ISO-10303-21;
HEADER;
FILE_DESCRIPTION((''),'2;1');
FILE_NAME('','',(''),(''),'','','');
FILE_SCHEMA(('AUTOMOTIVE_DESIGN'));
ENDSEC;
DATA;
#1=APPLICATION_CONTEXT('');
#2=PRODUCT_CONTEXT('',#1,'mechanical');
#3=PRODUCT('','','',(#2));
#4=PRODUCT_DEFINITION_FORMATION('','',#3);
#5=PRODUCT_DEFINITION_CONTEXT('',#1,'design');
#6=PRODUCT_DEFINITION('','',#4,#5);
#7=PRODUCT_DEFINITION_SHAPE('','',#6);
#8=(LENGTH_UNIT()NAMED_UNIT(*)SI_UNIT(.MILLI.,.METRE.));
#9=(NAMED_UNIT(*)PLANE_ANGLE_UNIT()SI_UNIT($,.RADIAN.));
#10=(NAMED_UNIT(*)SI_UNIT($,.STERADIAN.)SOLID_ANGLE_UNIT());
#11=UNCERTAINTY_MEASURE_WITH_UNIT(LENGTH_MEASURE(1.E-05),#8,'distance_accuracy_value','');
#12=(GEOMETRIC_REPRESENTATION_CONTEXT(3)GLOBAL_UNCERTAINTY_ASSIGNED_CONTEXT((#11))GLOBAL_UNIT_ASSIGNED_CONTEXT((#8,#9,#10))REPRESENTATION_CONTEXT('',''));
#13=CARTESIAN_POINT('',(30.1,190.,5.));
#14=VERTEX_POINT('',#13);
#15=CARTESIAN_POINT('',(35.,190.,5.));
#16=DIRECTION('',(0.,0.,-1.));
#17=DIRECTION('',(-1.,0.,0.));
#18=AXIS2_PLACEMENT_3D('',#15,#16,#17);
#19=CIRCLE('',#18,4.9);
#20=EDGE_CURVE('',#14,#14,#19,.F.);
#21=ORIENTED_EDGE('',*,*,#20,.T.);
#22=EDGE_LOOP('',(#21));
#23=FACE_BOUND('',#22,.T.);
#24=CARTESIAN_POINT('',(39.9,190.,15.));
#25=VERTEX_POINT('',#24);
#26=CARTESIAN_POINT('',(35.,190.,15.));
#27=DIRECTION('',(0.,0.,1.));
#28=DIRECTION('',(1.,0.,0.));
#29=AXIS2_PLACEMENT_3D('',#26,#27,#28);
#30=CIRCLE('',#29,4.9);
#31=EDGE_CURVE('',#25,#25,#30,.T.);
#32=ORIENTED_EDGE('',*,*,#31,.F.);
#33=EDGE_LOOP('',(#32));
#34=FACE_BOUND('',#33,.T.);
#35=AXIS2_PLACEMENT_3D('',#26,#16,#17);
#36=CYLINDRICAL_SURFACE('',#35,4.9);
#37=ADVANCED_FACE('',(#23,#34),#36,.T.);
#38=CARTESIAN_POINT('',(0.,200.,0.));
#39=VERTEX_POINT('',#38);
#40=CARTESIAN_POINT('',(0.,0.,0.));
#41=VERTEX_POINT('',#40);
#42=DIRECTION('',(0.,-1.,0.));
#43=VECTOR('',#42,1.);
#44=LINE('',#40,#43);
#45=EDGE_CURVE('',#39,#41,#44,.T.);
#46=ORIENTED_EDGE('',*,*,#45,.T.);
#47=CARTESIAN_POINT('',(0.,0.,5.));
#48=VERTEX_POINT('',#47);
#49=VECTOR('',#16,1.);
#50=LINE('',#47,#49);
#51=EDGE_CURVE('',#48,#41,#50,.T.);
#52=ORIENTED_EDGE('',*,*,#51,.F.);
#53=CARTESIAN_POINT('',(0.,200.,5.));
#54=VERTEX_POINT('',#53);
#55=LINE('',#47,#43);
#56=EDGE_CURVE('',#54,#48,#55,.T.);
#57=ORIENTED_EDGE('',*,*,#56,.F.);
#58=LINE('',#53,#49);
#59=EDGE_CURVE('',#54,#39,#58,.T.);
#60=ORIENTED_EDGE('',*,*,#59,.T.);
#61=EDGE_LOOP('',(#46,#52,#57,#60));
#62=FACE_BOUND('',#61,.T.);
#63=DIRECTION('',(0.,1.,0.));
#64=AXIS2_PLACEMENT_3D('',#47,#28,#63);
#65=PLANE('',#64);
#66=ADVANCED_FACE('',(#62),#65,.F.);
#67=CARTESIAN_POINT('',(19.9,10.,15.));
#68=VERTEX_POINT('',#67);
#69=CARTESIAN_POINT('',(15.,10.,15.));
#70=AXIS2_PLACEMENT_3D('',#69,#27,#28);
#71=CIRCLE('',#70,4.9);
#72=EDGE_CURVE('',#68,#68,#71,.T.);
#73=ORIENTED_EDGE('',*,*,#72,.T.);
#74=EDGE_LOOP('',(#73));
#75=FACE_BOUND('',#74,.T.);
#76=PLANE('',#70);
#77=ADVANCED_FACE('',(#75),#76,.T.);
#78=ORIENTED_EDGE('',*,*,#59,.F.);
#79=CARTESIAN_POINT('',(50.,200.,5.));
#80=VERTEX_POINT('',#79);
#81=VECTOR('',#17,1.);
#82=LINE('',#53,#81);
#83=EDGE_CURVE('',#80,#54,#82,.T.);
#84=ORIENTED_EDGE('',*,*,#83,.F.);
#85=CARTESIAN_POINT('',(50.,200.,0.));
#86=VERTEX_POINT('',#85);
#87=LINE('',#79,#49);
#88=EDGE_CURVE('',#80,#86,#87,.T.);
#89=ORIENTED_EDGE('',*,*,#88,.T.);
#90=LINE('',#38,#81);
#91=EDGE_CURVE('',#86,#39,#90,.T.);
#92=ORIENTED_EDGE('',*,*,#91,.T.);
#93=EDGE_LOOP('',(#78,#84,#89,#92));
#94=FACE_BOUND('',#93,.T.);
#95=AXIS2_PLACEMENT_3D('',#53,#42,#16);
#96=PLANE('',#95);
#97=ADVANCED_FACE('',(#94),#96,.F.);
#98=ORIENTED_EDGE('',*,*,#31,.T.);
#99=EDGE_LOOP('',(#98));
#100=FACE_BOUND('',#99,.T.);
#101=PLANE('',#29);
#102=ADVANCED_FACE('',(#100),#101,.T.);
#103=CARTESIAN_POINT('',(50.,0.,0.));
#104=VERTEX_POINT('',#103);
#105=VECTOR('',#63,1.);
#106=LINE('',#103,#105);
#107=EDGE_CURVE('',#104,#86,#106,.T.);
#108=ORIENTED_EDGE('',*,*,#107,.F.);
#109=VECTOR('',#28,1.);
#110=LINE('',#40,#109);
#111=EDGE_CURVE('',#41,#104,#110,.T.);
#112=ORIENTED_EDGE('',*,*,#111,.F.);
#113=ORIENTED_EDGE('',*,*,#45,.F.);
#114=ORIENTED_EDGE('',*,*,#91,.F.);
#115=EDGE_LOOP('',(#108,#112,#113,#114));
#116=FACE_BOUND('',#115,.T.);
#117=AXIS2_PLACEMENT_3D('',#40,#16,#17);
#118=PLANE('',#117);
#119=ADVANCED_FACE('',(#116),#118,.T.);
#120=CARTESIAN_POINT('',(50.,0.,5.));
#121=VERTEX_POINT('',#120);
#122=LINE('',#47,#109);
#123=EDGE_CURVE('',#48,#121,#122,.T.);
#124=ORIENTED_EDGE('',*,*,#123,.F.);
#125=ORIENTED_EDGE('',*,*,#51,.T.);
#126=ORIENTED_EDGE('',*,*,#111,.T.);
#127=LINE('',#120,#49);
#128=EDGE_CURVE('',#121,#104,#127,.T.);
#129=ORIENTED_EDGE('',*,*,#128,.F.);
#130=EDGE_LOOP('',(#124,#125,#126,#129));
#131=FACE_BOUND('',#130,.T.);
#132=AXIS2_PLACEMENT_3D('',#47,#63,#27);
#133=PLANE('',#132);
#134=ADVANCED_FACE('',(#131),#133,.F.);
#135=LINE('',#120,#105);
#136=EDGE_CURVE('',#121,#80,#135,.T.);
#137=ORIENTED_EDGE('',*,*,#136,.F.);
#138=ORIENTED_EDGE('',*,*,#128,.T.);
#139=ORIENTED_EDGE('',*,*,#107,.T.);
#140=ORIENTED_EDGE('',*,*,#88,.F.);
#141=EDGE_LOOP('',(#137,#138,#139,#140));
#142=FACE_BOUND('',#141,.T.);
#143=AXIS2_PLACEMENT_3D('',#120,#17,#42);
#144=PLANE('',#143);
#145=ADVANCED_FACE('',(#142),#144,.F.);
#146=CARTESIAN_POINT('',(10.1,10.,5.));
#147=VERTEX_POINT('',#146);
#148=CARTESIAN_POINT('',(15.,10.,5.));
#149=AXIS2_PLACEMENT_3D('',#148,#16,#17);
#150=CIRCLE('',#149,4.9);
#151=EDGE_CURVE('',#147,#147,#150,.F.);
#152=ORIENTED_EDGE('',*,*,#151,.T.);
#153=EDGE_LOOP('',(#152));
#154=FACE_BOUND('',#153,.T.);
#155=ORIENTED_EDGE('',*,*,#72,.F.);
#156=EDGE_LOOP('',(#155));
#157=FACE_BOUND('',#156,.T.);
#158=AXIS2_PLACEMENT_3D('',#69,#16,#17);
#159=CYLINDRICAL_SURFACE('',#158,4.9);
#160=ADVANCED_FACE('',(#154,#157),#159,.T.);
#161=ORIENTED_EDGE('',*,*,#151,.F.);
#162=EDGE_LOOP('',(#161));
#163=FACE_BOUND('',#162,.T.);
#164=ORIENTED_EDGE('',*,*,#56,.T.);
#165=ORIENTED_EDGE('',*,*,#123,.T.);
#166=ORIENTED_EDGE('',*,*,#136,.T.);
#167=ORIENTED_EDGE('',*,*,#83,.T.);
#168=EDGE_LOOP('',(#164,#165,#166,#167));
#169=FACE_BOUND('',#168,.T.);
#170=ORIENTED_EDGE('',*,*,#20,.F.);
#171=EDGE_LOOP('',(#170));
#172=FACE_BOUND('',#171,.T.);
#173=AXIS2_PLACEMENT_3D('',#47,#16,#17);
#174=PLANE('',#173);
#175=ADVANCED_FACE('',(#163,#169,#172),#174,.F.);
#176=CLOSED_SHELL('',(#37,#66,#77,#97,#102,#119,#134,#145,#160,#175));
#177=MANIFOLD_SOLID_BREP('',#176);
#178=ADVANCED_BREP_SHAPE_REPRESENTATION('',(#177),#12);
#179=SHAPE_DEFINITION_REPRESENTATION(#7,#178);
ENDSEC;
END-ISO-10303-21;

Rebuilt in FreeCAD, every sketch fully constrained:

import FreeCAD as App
import Part
import Sketcher
from FreeCAD import Vector

doc = App.newDocument("Part")
body = doc.addObject("PartDesign::Body", "Body")

# Sketch on XY plane
sketch1 = doc.addObject("Sketcher::SketchObject", "Sketch")
body.addObject(sketch1)
sketch1.AttachmentSupport = (doc.XY_Plane, [""])
sketch1.MapMode = "FlatFace"
sketch1.addGeometry([
    Part.LineSegment(Vector(0, 200, 0), Vector(0, 0, 0)),
    Part.LineSegment(Vector(0, 0, 0), Vector(50, 0, 0)),
    Part.LineSegment(Vector(50, 0, 0), Vector(50, 200, 0)),
    Part.LineSegment(Vector(50, 200, 0), Vector(0, 200, 0)),
], False)
sketch1.addConstraint([
    Sketcher.Constraint("Coincident", 0, 2, 1, 1),
    Sketcher.Constraint("Coincident", 1, 2, 2, 1),
    Sketcher.Constraint("Coincident", 2, 2, 3, 1),
    Sketcher.Constraint("Coincident", 3, 2, 0, 1),
    Sketcher.Constraint("Vertical", 0),
    Sketcher.Constraint("Horizontal", 1),
    Sketcher.Constraint("Vertical", 2),
    Sketcher.Constraint("Horizontal", 3),
    Sketcher.Constraint("Coincident", 0, 2, -1, 1),
    Sketcher.Constraint("DistanceX", 1, 1, 1, 2, 50.0),
    Sketcher.Constraint("DistanceY", 0, 2, 0, 1, 200.0),
])
pad1 = doc.addObject("PartDesign::Pad", "Pad")
body.addObject(pad1)
pad1.Profile = sketch1
pad1.Length = 5

# Sketch on XY plane
sketch2 = doc.addObject("Sketcher::SketchObject", "Sketch001")
body.addObject(sketch2)
sketch2.AttachmentSupport = (doc.XY_Plane, [""])
sketch2.MapMode = "FlatFace"
sketch2.AttachmentOffset = App.Placement(Vector(0, 0, 5), App.Rotation())
sketch2.addGeometry([
    Part.Circle(Vector(15, 10, 0), Vector(0, 0, 1), 4.9),
    Part.Circle(Vector(35, 190, 0), Vector(0, 0, 1), 4.9),
], False)
sketch2.addConstraint([
    Sketcher.Constraint("Equal", 0, 1),
    Sketcher.Constraint("Diameter", 0, 9.8),
    Sketcher.Constraint("DistanceX", -1, 1, 0, 3, 15.0),
    Sketcher.Constraint("DistanceY", -1, 1, 0, 3, 10.0),
    Sketcher.Constraint("DistanceX", -1, 1, 1, 3, 35.0),
    Sketcher.Constraint("DistanceY", -1, 1, 1, 3, 190.0),
])
pad2 = doc.addObject("PartDesign::Pad", "Pad001")
body.addObject(pad2)
pad2.Profile = sketch2
pad2.Length = 10

doc.recompute()
